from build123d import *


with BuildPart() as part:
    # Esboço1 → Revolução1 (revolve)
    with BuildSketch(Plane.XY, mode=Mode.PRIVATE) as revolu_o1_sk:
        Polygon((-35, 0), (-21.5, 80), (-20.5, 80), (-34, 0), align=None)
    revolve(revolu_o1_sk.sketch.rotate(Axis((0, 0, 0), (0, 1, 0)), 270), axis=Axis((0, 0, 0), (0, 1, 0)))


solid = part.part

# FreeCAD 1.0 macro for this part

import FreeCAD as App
import Part
import Sketcher
Q = App.Units.Quantity

doc = App.newDocument("Part")
body = doc.addObject("PartDesign::Body", "Body")

# Sketch on XY plane
sketch1 = body.newObject("Sketcher::SketchObject", "Sketch")
sketch1.AttachmentSupport = (doc.getObject("XY_Plane"), [""])
sketch1.MapMode = "FlatFace"
sketch1.addGeometry(Part.LineSegment(App.Vector(-21.5, 80, 0), App.Vector(-35, 0, 0)), False)
sketch1.addGeometry(Part.LineSegment(App.Vector(-35, 0, 0), App.Vector(-34, 0, 0)), False)
sketch1.addGeometry(Part.LineSegment(App.Vector(-34, 0, 0), App.Vector(-20.5, 80, 0)), False)
sketch1.addGeometry(Part.LineSegment(App.Vector(-20.5, 80, 0), App.Vector(-21.5, 80, 0)), False)
sketch1.addConstraint(Sketcher.Constraint("Coincident", 0, 2, 1, 1))
sketch1.addConstraint(Sketcher.Constraint("Coincident", 1, 2, 2, 1))
sketch1.addConstraint(Sketcher.Constraint("Coincident", 2, 2, 3, 1))
sketch1.addConstraint(Sketcher.Constraint("Coincident", 3, 2, 0, 1))
sketch1.addConstraint(Sketcher.Constraint("Horizontal", 1))
sketch1.addConstraint(Sketcher.Constraint("Horizontal", 3))
sketch1.addConstraint(Sketcher.Constraint("PointOnObject", 0, 2, -1))
sketch1.addConstraint(Sketcher.Constraint("Parallel", 0, 2))
sketch1.addConstraint(Sketcher.Constraint("DistanceX", 1, 1, 1, 2, Q("1 mm")))
sketch1.addConstraint(Sketcher.Constraint("DistanceX", 0, 2, -1, 1, Q("35 mm")))
sketch1.addConstraint(Sketcher.Constraint("DistanceY", -1, 1, 2, 2, Q("80 mm")))
sketch1.addConstraint(Sketcher.Constraint("DistanceX", 2, 2, -1, 1, Q("20.5 mm")))
revolution = body.newObject("PartDesign::Revolution", "Revolution")
revolution.Profile = sketch1
revolution.ReferenceAxis = (sketch1, ["V_Axis"])
revolution.Angle = 360

doc.recompute()
